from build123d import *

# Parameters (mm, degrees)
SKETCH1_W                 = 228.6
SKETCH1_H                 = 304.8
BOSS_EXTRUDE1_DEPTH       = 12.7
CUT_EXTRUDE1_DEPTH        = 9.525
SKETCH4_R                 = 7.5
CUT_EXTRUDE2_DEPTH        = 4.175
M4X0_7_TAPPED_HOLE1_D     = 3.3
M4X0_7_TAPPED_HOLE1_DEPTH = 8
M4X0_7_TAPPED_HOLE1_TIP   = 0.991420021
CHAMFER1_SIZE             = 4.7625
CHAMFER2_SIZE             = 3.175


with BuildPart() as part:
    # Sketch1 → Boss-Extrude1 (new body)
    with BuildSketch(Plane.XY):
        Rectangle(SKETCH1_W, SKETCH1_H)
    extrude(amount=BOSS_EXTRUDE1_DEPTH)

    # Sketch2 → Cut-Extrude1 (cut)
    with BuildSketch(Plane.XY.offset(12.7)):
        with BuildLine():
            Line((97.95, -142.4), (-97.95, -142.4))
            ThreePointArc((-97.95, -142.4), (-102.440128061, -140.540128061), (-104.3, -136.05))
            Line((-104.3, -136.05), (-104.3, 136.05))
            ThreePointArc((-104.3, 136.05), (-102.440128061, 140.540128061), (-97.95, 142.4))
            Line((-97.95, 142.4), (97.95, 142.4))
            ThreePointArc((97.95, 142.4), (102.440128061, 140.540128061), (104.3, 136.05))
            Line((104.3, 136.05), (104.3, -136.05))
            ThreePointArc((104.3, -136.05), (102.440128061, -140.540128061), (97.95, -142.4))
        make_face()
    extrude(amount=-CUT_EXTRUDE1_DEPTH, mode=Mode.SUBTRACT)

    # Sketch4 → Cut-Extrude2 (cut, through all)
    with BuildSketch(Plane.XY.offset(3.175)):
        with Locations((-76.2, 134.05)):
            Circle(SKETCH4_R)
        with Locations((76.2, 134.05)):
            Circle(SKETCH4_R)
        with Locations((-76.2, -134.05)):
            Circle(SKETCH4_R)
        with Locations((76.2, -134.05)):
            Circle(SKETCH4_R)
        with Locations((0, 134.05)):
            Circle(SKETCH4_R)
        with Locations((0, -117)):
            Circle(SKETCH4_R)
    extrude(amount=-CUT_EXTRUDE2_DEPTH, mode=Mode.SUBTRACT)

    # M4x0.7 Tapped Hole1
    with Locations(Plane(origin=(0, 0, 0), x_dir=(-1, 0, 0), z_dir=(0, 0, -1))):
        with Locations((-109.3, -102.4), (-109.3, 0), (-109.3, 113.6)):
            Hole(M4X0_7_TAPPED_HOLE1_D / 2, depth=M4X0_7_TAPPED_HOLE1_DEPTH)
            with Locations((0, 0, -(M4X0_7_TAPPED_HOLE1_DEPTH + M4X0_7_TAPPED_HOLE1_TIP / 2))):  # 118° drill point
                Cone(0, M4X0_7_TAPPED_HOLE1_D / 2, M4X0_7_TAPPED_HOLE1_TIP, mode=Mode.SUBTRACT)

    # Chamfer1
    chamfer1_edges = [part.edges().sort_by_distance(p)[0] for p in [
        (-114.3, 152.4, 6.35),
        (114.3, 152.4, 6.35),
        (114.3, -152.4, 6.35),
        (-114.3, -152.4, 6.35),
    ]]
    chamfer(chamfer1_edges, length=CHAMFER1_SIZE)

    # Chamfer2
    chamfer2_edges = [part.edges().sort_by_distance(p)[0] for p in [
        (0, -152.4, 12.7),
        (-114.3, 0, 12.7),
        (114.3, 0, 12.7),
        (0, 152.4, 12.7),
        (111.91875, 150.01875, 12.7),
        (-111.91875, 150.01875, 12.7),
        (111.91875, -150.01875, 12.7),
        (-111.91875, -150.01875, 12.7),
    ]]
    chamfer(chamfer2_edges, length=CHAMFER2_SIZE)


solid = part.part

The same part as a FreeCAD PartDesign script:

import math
import FreeCAD as App
import Part
import Sketcher
Q = App.Units.Quantity


def edges_at(feature, points):
    """Names of the edges that pass closest to the given points."""
    edges = feature.Shape.Edges
    near = lambda p: min(range(len(edges)), key=lambda i: edges[i].distToShape(Part.Vertex(*p))[0])
    return sorted({f"Edge{near(p) + 1}" for p in points})

doc = App.newDocument("Part")
params = doc.addObject("Spreadsheet::Sheet", "Params")
for row, (alias, value) in enumerate([
    ("sketch1_width", "9 in"),
    ("sketch1_height", "12 in"),
    ("pad1_length", "0.5 in"),
    ("sketch2_radius", "0.25 in"),
    ("pocket1_length", "0.375 in"),
    ("hole_diameter", "3.3 mm"),
    ("hole_depth", "8 mm"),
    ("chamfer_size", "0.1875 in"),
    ("chamfer2_size", "0.125 in"),
], start=1):
    params.set(f"A{row}", alias)
    params.set(f"B{row}", "=" + value)
    params.setAlias(f"B{row}", alias)

body = doc.addObject("PartDesign::Body", "Body")

sketch1 = body.newObject("Sketcher::SketchObject", "Sketch")
sketch1.AttachmentSupport = (doc.getObject("XY_Plane"), [""])
sketch1.MapMode = "FlatFace"
sketch1.addGeometry(Part.LineSegment(App.Vector(-114.3, 152.4, 0), App.Vector(-114.3, -152.4, 0)), False)
sketch1.addGeometry(Part.LineSegment(App.Vector(-114.3, -152.4, 0), App.Vector(114.3, -152.4, 0)), False)
sketch1.addGeometry(Part.LineSegment(App.Vector(114.3, -152.4, 0), App.Vector(114.3, 152.4, 0)), False)
sketch1.addGeometry(Part.LineSegment(App.Vector(114.3, 152.4, 0), App.Vector(-114.3, 152.4, 0)), False)
sketch1.addConstraint(Sketcher.Constraint("Coincident", 0, 2, 1, 1))
sketch1.addConstraint(Sketcher.Constraint("Coincident", 1, 2, 2, 1))
sketch1.addConstraint(Sketcher.Constraint("Coincident", 2, 2, 3, 1))
sketch1.addConstraint(Sketcher.Constraint("Coincident", 3, 2, 0, 1))
sketch1.addConstraint(Sketcher.Constraint("Vertical", 0))
sketch1.addConstraint(Sketcher.Constraint("Horizontal", 1))
sketch1.addConstraint(Sketcher.Constraint("Vertical", 2))
sketch1.addConstraint(Sketcher.Constraint("Horizontal", 3))
sketch1.addConstraint(Sketcher.Constraint("Symmetric", 0, 2, 2, 2, -1, 1))
sketch1.addConstraint(Sketcher.Constraint("DistanceX", 1, 1, 1, 2, Q("9 in")))
sketch1.addConstraint(Sketcher.Constraint("DistanceY", 0, 2, 0, 1, Q("12 in")))
sketch1.setExpression("Constraints[9]", "Params.sketch1_width")
sketch1.setExpression("Constraints[10]", "Params.sketch1_height")
pad1 = body.newObject("PartDesign::Pad", "Pad")
pad1.Profile = sketch1
pad1.setExpression("Length", "Params.pad1_length")

sketch2 = body.newObject("Sketcher::SketchObject", "Sketch001")
sketch2.AttachmentSupport = (doc.getObject("XY_Plane"), [""])
sketch2.MapMode = "FlatFace"
sketch2.AttachmentOffset = App.Placement(App.Vector(0, 0, 0.5 * 25.4), App.Rotation())
sketch2.addGeometry(Part.LineSegment(App.Vector(-97.95, -142.4, 0), App.Vector(97.95, -142.4, 0)), False)
sketch2.addGeometry(Part.ArcOfCircle(Part.Circle(App.Vector(97.95, -136.05, 0), App.Vector(0, 0, 1), 6.35), math.radians(-90), math.radians(0)), False)
sketch2.addGeometry(Part.LineSegment(App.Vector(104.3, -136.05, 0), App.Vector(104.3, 136.05, 0)), False)
sketch2.addGeometry(Part.ArcOfCircle(Part.Circle(App.Vector(97.95, 136.05, 0), App.Vector(0, 0, 1), 6.35), math.radians(0), math.radians(90)), False)
sketch2.addGeometry(Part.LineSegment(App.Vector(97.95, 142.4, 0), App.Vector(-97.95, 142.4, 0)), False)
sketch2.addGeometry(Part.ArcOfCircle(Part.Circle(App.Vector(-97.95, 136.05, 0), App.Vector(0, 0, 1), 6.35), math.radians(90), math.radians(180)), False)
sketch2.addGeometry(Part.LineSegment(App.Vector(-104.3, 136.05, 0), App.Vector(-104.3, -136.05, 0)), False)
sketch2.addGeometry(Part.ArcOfCircle(Part.Circle(App.Vector(-97.95, -136.05, 0), App.Vector(0, 0, 1), 6.35), math.radians(180), math.radians(270)), False)
sketch2.addConstraint(Sketcher.Constraint("Tangent", 0, 2, 1, 1))
sketch2.addConstraint(Sketcher.Constraint("Tangent", 1, 2, 2, 1))
sketch2.addConstraint(Sketcher.Constraint("Tangent", 2, 2, 3, 1))
sketch2.addConstraint(Sketcher.Constraint("Tangent", 3, 2, 4, 1))
sketch2.addConstraint(Sketcher.Constraint("Tangent", 4, 2, 5, 1))
sketch2.addConstraint(Sketcher.Constraint("Tangent", 5, 2, 6, 1))
sketch2.addConstraint(Sketcher.Constraint("Tangent", 6, 2, 7, 1))
sketch2.addConstraint(Sketcher.Constraint("Tangent", 7, 2, 0, 1))
sketch2.addConstraint(Sketcher.Constraint("Horizontal", 0))
sketch2.addConstraint(Sketcher.Constraint("Vertical", 2))
sketch2.addConstraint(Sketcher.Constraint("Horizontal", 4))
sketch2.addConstraint(Sketcher.Constraint("Vertical", 6))
sketch2.addConstraint(Sketcher.Constraint("Equal", 1, 3))
sketch2.addConstraint(Sketcher.Constraint("Equal", 3, 5))
sketch2.addConstraint(Sketcher.Constraint("Equal", 5, 7))
sketch2.addConstraint(Sketcher.Constraint("Symmetric", 1, 3, 5, 3, -1, 1))
sketch2.addConstraint(Sketcher.Constraint("Radius", 1, Q("0.25 in")))
sketch2.addConstraint(Sketcher.Constraint("DistanceX", 0, 1, 0, 2, Q("195.9 mm")))
sketch2.addConstraint(Sketcher.Constraint("DistanceY", 2, 1, 2, 2, Q("272.1 mm")))
sketch2.setExpression("Constraints[16]", "Params.sketch2_radius")
pocket1 = body.newObject("PartDesign::Pocket", "Pocket")
pocket1.Profile = sketch2
pocket1.setExpression("Length", "Params.pocket1_length")

sketch3 = body.newObject("Sketcher::SketchObject", "Sketch002")
sketch3.AttachmentSupport = (doc.getObject("XY_Plane"), [""])
sketch3.MapMode = "FlatFace"
sketch3.AttachmentOffset = App.Placement(App.Vector(0, 0, 0.125 * 25.4), App.Rotation())
sketch3.addGeometry(Part.Circle(App.Vector(-76.2, 134.05, 0), App.Vector(0, 0, 1), 7.5), False)
sketch3.addGeometry(Part.Circle(App.Vector(76.2, 134.05, 0), App.Vector(0, 0, 1), 7.5), False)
sketch3.addGeometry(Part.Circle(App.Vector(-76.2, -134.05, 0), App.Vector(0, 0, 1), 7.5), False)
sketch3.addGeometry(Part.Circle(App.Vector(76.2, -134.05, 0), App.Vector(0, 0, 1), 7.5), False)
sketch3.addGeometry(Part.Circle(App.Vector(0, 134.05, 0), App.Vector(0, 0, 1), 7.5), False)
sketch3.addGeometry(Part.Circle(App.Vector(0, -117, 0), App.Vector(0, 0, 1), 7.5), False)
sketch3.addConstraint(Sketcher.Constraint("Equal", 0, 1))
sketch3.addConstraint(Sketcher.Constraint("Equal", 1, 2))
sketch3.addConstraint(Sketcher.Constraint("Equal", 2, 3))
sketch3.addConstraint(Sketcher.Constraint("Equal", 3, 4))
sketch3.addConstraint(Sketcher.Constraint("Equal", 4, 5))
sketch3.addConstraint(Sketcher.Constraint("Symmetric", 1, 3, 2, 3, -1, 1))
sketch3.addConstraint(Sketcher.Constraint("Symmetric", 0, 3, 3, 3, -1, 1))
sketch3.addConstraint(Sketcher.Constraint("Symmetric", 0, 3, 1, 3, -2))
sketch3.addConstraint(Sketcher.Constraint("PointOnObject", 4, 3, -2))
sketch3.addConstraint(Sketcher.Constraint("PointOnObject", 5, 3, -2))
sketch3.addConstraint(Sketcher.Constraint("Horizontal", 1, 3, 4, 3))
sketch3.addConstraint(Sketcher.Constraint("DistanceX", 0, 3, -1, 1, Q("3 in")))
sketch3.addConstraint(Sketcher.Constraint("Diameter", 0, Q("15 mm")))
sketch3.addConstraint(Sketcher.Constraint("DistanceY", -1, 1, 0, 3, Q("134.05 mm")))
sketch3.addConstraint(Sketcher.Constraint("DistanceY", 5, 3, -1, 1, Q("117 mm")))
pocket2 = body.newObject("PartDesign::Pocket", "Pocket001")
pocket2.Profile = sketch3
pocket2.Type = "ThroughAll"

sketch4 = body.newObject("Sketcher::SketchObject", "Sketch003")
sketch4.AttachmentSupport = (doc.getObject("XY_Plane"), [""])
sketch4.MapMode = "FlatFace"
sketch4.addGeometry(Part.Circle(App.Vector(109.3, -102.4, 0), App.Vector(0, 0, 1), 1.65), False)
sketch4.addGeometry(Part.Circle(App.Vector(109.3, 0, 0), App.Vector(0, 0, 1), 1.65), False)
sketch4.addGeometry(Part.Circle(App.Vector(109.3, 113.6, 0), App.Vector(0, 0, 1), 1.65), False)
sketch4.addConstraint(Sketcher.Constraint("Equal", 0, 1))
sketch4.addConstraint(Sketcher.Constraint("Equal", 1, 2))
sketch4.addConstraint(Sketcher.Constraint("PointOnObject", 1, 3, -1))
sketch4.addConstraint(Sketcher.Constraint("Vertical", 0, 3, 1, 3))
sketch4.addConstraint(Sketcher.Constraint("Vertical", 1, 3, 2, 3))
sketch4.addConstraint(Sketcher.Constraint("Diameter", 0, Q("3.3 mm")))
sketch4.addConstraint(Sketcher.Constraint("DistanceX", -1, 1, 0, 3, Q("109.3 mm")))
sketch4.addConstraint(Sketcher.Constraint("DistanceY", 0, 3, -1, 1, Q("102.4 mm")))
sketch4.addConstraint(Sketcher.Constraint("DistanceY", -1, 1, 2, 3, Q("113.6 mm")))
doc.recompute()
hole = body.newObject("PartDesign::Hole", "Hole")
hole.Profile = sketch4
hole.ThreadType = "None"
hole.setExpression("Diameter", "Params.hole_diameter")
hole.DepthType = "Dimension"
hole.setExpression("Depth", "Params.hole_depth")
hole.DrillPoint = "Angled"
hole.DrillPointAngle = 118
hole.Reversed = True
doc.recompute()

chamfer = body.newObject("PartDesign::Chamfer", "Chamfer")
chamfer.Base = (hole, edges_at(hole, [
    (-114.3, 152.4, 6.35),
    (114.3, 152.4, 6.35),
    (114.3, -152.4, 6.35),
    (-114.3, -152.4, 6.35),
]))
chamfer.setExpression("Size", "Params.chamfer_size")
doc.recompute()

chamfer2 = body.newObject("PartDesign::Chamfer", "Chamfer001")
chamfer2.Base = (chamfer, edges_at(chamfer, [
    (0, -152.4, 12.7),
    (-114.3, 0, 12.7),
    (114.3, 0, 12.7),
    (0, 152.4, 12.7),
    (111.919, 150.019, 12.7),
    (-111.919, 150.019, 12.7),
    (111.919, -150.019, 12.7),
    (-111.919, -150.019, 12.7),
]))
chamfer2.setExpression("Size", "Params.chamfer2_size")

doc.recompute()
